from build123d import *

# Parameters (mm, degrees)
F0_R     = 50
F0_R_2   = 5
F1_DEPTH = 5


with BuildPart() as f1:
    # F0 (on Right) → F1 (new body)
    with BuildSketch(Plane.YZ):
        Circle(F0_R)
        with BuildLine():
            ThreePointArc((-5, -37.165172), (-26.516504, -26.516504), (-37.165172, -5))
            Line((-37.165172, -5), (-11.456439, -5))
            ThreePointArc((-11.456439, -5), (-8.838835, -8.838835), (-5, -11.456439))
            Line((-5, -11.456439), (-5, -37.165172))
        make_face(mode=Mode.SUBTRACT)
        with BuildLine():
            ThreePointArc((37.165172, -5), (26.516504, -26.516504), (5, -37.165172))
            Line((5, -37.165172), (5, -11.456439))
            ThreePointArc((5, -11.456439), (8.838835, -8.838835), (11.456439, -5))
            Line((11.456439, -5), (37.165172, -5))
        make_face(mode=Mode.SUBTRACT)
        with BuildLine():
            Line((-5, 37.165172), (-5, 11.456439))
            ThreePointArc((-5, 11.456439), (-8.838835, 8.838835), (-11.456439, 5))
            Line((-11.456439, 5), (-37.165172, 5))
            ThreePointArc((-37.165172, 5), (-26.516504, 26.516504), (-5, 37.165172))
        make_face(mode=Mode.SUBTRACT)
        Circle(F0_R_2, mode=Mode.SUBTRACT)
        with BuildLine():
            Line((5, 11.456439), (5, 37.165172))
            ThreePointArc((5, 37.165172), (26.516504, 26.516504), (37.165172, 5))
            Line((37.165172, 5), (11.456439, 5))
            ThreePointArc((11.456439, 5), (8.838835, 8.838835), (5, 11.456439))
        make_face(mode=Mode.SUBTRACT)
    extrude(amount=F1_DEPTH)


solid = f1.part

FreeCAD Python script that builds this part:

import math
import FreeCAD as App
import Part
import Sketcher

V = App.Vector

doc = App.newDocument("Part")
body = doc.addObject("PartDesign::Body", "Body")

# Sketch on YZ plane
sketch1 = body.newObject("Sketcher::SketchObject", "Sketch")
sketch1.AttachmentSupport = (doc.getObject("YZ_Plane"), [""])
sketch1.MapMode = "FlatFace"
sketch1.addGeometry([
    Part.Circle(V(0, 0, 0), V(0, 0, 1), 50),  # 0
    Part.LineSegment(V(-5, -11.456439, 0), V(-5, -37.165172, 0)),  # 1
    Part.ArcOfCircle(Part.Circle(V(0.000002, 0.000002, 0), V(0, 0, 1), 37.500002), math.radians(-172.337742), math.radians(-97.662258)),  # 2
    Part.LineSegment(V(-37.165172, -5, 0), V(-11.456439, -5, 0)),  # 3
    Part.ArcOfCircle(Part.Circle(V(-0.000006, -0.000006, 0), V(0, 0, 1), 12.499992), math.radians(-156.421834), math.radians(-113.578166)),  # 4
    Part.LineSegment(V(11.456439, -5, 0), V(37.165172, -5, 0)),  # 5
    Part.ArcOfCircle(Part.Circle(V(-0.000002, 0.000002, 0), V(0, 0, 1), 37.500002), math.radians(-82.337742), math.radians(-7.662258)),  # 6
    Part.LineSegment(V(5, -37.165172, 0), V(5, -11.456439, 0)),  # 7
    Part.ArcOfCircle(Part.Circle(V(0.000006, -0.000006, 0), V(0, 0, 1), 12.499992), math.radians(-66.421834), math.radians(-23.578166)),  # 8
    Part.ArcOfCircle(Part.Circle(V(0.000002, -0.000002, 0), V(0, 0, 1), 37.500002), math.radians(97.662258), math.radians(172.337742)),  # 9
    Part.LineSegment(V(-5, 37.165172, 0), V(-5, 11.456439, 0)),  # 10
    Part.ArcOfCircle(Part.Circle(V(-0.000006, 0.000006, 0), V(0, 0, 1), 12.499992), math.radians(113.578166), math.radians(156.421834)),  # 11
    Part.LineSegment(V(-11.456439, 5, 0), V(-37.165172, 5, 0)),  # 12
    Part.Circle(V(0, 0, 0), V(0, 0, 1), 5),  # 13
    Part.ArcOfCircle(Part.Circle(V(0.000006, 0.000006, 0), V(0, 0, 1), 12.499992), math.radians(23.578166), math.radians(66.421834)),  # 14
    Part.LineSegment(V(5, 11.456439, 0), V(5, 37.165172, 0)),  # 15
    Part.ArcOfCircle(Part.Circle(V(-0.000002, -0.000002, 0), V(0, 0, 1), 37.500002), math.radians(7.662258), math.radians(82.337742)),  # 16
    Part.LineSegment(V(37.165172, 5, 0), V(11.456439, 5, 0)),  # 17
], False)
sketch1.addConstraint([
    Sketcher.Constraint("Coincident", 1, 2, 2, 2),
    Sketcher.Constraint("Coincident", 2, 1, 3, 1),
    Sketcher.Constraint("Coincident", 3, 2, 4, 1),
    Sketcher.Constraint("Coincident", 4, 2, 1, 1),
    Sketcher.Constraint("Coincident", 5, 2, 6, 2),
    Sketcher.Constraint("Coincident", 6, 1, 7, 1),
    Sketcher.Constraint("Coincident", 7, 2, 8, 1),
    Sketcher.Constraint("Coincident", 8, 2, 5, 1),
    Sketcher.Constraint("Coincident", 9, 1, 10, 1),
    Sketcher.Constraint("Coincident", 10, 2, 11, 1),
    Sketcher.Constraint("Coincident", 11, 2, 12, 1),
    Sketcher.Constraint("Coincident", 12, 2, 9, 2),
    Sketcher.Constraint("Coincident", 14, 2, 15, 1),
    Sketcher.Constraint("Coincident", 15, 2, 16, 2),
    Sketcher.Constraint("Coincident", 16, 1, 17, 1),
    Sketcher.Constraint("Coincident", 17, 2, 14, 1),
    Sketcher.Constraint("Vertical", 1),
    Sketcher.Constraint("Horizontal", 3),
    Sketcher.Constraint("Horizontal", 5),
    Sketcher.Constraint("Vertical", 7),
    Sketcher.Constraint("Vertical", 10),
    Sketcher.Constraint("Horizontal", 12),
    Sketcher.Constraint("Vertical", 15),
    Sketcher.Constraint("Horizontal", 17),
    Sketcher.Constraint("Coincident", 0, 3, -1, 1),
    Sketcher.Constraint("Coincident", 2, 3, -1, 1),
    Sketcher.Constraint("Coincident", 4, 3, -1, 1),
    Sketcher.Constraint("Coincident", 6, 3, -1, 1),
    Sketcher.Constraint("Coincident", 8, 3, -1, 1),
    Sketcher.Constraint("Coincident", 9, 3, -1, 1),
    Sketcher.Constraint("Coincident", 11, 3, -1, 1),
    Sketcher.Constraint("Coincident", 13, 3, -1, 1),
    Sketcher.Constraint("Coincident", 14, 3, -1, 1),
    Sketcher.Constraint("Coincident", 16, 3, -1, 1),
    Sketcher.Constraint("Equal", 2, 6),
    Sketcher.Constraint("Equal", 4, 8),
    Sketcher.Constraint("Equal", 6, 9),
    Sketcher.Constraint("Equal", 8, 11),
    Sketcher.Constraint("Equal", 11, 14),
    Sketcher.Constraint("Equal", 9, 16),
    Sketcher.Constraint("Horizontal", 3, 2, 5, 2),
    Sketcher.Constraint("Horizontal", 1, 2, 6, 1),
    Sketcher.Constraint("Horizontal", 10, 2, 14, 2),
    Sketcher.Constraint("Horizontal", 12, 2, 16, 1),
    Sketcher.Constraint("Vertical", 4, 2, 9, 1),
    Sketcher.Constraint("Vertical", 3, 2, 11, 2),
    Sketcher.Constraint("Equal", 17, 1),
    Sketcher.Constraint("Diameter", 0, 100.0),
    Sketcher.Constraint("Diameter", 13, 10.0),
    Sketcher.Constraint("DistanceX", 1, 2, -1, 1, 5.0),
    Sketcher.Constraint("Radius", 2, 37.500002),
    Sketcher.Constraint("Radius", 4, 12.499992),
])
pad1 = body.newObject("PartDesign::Pad", "Pad")
pad1.Profile = sketch1
pad1.Length = 5

doc.recompute()
